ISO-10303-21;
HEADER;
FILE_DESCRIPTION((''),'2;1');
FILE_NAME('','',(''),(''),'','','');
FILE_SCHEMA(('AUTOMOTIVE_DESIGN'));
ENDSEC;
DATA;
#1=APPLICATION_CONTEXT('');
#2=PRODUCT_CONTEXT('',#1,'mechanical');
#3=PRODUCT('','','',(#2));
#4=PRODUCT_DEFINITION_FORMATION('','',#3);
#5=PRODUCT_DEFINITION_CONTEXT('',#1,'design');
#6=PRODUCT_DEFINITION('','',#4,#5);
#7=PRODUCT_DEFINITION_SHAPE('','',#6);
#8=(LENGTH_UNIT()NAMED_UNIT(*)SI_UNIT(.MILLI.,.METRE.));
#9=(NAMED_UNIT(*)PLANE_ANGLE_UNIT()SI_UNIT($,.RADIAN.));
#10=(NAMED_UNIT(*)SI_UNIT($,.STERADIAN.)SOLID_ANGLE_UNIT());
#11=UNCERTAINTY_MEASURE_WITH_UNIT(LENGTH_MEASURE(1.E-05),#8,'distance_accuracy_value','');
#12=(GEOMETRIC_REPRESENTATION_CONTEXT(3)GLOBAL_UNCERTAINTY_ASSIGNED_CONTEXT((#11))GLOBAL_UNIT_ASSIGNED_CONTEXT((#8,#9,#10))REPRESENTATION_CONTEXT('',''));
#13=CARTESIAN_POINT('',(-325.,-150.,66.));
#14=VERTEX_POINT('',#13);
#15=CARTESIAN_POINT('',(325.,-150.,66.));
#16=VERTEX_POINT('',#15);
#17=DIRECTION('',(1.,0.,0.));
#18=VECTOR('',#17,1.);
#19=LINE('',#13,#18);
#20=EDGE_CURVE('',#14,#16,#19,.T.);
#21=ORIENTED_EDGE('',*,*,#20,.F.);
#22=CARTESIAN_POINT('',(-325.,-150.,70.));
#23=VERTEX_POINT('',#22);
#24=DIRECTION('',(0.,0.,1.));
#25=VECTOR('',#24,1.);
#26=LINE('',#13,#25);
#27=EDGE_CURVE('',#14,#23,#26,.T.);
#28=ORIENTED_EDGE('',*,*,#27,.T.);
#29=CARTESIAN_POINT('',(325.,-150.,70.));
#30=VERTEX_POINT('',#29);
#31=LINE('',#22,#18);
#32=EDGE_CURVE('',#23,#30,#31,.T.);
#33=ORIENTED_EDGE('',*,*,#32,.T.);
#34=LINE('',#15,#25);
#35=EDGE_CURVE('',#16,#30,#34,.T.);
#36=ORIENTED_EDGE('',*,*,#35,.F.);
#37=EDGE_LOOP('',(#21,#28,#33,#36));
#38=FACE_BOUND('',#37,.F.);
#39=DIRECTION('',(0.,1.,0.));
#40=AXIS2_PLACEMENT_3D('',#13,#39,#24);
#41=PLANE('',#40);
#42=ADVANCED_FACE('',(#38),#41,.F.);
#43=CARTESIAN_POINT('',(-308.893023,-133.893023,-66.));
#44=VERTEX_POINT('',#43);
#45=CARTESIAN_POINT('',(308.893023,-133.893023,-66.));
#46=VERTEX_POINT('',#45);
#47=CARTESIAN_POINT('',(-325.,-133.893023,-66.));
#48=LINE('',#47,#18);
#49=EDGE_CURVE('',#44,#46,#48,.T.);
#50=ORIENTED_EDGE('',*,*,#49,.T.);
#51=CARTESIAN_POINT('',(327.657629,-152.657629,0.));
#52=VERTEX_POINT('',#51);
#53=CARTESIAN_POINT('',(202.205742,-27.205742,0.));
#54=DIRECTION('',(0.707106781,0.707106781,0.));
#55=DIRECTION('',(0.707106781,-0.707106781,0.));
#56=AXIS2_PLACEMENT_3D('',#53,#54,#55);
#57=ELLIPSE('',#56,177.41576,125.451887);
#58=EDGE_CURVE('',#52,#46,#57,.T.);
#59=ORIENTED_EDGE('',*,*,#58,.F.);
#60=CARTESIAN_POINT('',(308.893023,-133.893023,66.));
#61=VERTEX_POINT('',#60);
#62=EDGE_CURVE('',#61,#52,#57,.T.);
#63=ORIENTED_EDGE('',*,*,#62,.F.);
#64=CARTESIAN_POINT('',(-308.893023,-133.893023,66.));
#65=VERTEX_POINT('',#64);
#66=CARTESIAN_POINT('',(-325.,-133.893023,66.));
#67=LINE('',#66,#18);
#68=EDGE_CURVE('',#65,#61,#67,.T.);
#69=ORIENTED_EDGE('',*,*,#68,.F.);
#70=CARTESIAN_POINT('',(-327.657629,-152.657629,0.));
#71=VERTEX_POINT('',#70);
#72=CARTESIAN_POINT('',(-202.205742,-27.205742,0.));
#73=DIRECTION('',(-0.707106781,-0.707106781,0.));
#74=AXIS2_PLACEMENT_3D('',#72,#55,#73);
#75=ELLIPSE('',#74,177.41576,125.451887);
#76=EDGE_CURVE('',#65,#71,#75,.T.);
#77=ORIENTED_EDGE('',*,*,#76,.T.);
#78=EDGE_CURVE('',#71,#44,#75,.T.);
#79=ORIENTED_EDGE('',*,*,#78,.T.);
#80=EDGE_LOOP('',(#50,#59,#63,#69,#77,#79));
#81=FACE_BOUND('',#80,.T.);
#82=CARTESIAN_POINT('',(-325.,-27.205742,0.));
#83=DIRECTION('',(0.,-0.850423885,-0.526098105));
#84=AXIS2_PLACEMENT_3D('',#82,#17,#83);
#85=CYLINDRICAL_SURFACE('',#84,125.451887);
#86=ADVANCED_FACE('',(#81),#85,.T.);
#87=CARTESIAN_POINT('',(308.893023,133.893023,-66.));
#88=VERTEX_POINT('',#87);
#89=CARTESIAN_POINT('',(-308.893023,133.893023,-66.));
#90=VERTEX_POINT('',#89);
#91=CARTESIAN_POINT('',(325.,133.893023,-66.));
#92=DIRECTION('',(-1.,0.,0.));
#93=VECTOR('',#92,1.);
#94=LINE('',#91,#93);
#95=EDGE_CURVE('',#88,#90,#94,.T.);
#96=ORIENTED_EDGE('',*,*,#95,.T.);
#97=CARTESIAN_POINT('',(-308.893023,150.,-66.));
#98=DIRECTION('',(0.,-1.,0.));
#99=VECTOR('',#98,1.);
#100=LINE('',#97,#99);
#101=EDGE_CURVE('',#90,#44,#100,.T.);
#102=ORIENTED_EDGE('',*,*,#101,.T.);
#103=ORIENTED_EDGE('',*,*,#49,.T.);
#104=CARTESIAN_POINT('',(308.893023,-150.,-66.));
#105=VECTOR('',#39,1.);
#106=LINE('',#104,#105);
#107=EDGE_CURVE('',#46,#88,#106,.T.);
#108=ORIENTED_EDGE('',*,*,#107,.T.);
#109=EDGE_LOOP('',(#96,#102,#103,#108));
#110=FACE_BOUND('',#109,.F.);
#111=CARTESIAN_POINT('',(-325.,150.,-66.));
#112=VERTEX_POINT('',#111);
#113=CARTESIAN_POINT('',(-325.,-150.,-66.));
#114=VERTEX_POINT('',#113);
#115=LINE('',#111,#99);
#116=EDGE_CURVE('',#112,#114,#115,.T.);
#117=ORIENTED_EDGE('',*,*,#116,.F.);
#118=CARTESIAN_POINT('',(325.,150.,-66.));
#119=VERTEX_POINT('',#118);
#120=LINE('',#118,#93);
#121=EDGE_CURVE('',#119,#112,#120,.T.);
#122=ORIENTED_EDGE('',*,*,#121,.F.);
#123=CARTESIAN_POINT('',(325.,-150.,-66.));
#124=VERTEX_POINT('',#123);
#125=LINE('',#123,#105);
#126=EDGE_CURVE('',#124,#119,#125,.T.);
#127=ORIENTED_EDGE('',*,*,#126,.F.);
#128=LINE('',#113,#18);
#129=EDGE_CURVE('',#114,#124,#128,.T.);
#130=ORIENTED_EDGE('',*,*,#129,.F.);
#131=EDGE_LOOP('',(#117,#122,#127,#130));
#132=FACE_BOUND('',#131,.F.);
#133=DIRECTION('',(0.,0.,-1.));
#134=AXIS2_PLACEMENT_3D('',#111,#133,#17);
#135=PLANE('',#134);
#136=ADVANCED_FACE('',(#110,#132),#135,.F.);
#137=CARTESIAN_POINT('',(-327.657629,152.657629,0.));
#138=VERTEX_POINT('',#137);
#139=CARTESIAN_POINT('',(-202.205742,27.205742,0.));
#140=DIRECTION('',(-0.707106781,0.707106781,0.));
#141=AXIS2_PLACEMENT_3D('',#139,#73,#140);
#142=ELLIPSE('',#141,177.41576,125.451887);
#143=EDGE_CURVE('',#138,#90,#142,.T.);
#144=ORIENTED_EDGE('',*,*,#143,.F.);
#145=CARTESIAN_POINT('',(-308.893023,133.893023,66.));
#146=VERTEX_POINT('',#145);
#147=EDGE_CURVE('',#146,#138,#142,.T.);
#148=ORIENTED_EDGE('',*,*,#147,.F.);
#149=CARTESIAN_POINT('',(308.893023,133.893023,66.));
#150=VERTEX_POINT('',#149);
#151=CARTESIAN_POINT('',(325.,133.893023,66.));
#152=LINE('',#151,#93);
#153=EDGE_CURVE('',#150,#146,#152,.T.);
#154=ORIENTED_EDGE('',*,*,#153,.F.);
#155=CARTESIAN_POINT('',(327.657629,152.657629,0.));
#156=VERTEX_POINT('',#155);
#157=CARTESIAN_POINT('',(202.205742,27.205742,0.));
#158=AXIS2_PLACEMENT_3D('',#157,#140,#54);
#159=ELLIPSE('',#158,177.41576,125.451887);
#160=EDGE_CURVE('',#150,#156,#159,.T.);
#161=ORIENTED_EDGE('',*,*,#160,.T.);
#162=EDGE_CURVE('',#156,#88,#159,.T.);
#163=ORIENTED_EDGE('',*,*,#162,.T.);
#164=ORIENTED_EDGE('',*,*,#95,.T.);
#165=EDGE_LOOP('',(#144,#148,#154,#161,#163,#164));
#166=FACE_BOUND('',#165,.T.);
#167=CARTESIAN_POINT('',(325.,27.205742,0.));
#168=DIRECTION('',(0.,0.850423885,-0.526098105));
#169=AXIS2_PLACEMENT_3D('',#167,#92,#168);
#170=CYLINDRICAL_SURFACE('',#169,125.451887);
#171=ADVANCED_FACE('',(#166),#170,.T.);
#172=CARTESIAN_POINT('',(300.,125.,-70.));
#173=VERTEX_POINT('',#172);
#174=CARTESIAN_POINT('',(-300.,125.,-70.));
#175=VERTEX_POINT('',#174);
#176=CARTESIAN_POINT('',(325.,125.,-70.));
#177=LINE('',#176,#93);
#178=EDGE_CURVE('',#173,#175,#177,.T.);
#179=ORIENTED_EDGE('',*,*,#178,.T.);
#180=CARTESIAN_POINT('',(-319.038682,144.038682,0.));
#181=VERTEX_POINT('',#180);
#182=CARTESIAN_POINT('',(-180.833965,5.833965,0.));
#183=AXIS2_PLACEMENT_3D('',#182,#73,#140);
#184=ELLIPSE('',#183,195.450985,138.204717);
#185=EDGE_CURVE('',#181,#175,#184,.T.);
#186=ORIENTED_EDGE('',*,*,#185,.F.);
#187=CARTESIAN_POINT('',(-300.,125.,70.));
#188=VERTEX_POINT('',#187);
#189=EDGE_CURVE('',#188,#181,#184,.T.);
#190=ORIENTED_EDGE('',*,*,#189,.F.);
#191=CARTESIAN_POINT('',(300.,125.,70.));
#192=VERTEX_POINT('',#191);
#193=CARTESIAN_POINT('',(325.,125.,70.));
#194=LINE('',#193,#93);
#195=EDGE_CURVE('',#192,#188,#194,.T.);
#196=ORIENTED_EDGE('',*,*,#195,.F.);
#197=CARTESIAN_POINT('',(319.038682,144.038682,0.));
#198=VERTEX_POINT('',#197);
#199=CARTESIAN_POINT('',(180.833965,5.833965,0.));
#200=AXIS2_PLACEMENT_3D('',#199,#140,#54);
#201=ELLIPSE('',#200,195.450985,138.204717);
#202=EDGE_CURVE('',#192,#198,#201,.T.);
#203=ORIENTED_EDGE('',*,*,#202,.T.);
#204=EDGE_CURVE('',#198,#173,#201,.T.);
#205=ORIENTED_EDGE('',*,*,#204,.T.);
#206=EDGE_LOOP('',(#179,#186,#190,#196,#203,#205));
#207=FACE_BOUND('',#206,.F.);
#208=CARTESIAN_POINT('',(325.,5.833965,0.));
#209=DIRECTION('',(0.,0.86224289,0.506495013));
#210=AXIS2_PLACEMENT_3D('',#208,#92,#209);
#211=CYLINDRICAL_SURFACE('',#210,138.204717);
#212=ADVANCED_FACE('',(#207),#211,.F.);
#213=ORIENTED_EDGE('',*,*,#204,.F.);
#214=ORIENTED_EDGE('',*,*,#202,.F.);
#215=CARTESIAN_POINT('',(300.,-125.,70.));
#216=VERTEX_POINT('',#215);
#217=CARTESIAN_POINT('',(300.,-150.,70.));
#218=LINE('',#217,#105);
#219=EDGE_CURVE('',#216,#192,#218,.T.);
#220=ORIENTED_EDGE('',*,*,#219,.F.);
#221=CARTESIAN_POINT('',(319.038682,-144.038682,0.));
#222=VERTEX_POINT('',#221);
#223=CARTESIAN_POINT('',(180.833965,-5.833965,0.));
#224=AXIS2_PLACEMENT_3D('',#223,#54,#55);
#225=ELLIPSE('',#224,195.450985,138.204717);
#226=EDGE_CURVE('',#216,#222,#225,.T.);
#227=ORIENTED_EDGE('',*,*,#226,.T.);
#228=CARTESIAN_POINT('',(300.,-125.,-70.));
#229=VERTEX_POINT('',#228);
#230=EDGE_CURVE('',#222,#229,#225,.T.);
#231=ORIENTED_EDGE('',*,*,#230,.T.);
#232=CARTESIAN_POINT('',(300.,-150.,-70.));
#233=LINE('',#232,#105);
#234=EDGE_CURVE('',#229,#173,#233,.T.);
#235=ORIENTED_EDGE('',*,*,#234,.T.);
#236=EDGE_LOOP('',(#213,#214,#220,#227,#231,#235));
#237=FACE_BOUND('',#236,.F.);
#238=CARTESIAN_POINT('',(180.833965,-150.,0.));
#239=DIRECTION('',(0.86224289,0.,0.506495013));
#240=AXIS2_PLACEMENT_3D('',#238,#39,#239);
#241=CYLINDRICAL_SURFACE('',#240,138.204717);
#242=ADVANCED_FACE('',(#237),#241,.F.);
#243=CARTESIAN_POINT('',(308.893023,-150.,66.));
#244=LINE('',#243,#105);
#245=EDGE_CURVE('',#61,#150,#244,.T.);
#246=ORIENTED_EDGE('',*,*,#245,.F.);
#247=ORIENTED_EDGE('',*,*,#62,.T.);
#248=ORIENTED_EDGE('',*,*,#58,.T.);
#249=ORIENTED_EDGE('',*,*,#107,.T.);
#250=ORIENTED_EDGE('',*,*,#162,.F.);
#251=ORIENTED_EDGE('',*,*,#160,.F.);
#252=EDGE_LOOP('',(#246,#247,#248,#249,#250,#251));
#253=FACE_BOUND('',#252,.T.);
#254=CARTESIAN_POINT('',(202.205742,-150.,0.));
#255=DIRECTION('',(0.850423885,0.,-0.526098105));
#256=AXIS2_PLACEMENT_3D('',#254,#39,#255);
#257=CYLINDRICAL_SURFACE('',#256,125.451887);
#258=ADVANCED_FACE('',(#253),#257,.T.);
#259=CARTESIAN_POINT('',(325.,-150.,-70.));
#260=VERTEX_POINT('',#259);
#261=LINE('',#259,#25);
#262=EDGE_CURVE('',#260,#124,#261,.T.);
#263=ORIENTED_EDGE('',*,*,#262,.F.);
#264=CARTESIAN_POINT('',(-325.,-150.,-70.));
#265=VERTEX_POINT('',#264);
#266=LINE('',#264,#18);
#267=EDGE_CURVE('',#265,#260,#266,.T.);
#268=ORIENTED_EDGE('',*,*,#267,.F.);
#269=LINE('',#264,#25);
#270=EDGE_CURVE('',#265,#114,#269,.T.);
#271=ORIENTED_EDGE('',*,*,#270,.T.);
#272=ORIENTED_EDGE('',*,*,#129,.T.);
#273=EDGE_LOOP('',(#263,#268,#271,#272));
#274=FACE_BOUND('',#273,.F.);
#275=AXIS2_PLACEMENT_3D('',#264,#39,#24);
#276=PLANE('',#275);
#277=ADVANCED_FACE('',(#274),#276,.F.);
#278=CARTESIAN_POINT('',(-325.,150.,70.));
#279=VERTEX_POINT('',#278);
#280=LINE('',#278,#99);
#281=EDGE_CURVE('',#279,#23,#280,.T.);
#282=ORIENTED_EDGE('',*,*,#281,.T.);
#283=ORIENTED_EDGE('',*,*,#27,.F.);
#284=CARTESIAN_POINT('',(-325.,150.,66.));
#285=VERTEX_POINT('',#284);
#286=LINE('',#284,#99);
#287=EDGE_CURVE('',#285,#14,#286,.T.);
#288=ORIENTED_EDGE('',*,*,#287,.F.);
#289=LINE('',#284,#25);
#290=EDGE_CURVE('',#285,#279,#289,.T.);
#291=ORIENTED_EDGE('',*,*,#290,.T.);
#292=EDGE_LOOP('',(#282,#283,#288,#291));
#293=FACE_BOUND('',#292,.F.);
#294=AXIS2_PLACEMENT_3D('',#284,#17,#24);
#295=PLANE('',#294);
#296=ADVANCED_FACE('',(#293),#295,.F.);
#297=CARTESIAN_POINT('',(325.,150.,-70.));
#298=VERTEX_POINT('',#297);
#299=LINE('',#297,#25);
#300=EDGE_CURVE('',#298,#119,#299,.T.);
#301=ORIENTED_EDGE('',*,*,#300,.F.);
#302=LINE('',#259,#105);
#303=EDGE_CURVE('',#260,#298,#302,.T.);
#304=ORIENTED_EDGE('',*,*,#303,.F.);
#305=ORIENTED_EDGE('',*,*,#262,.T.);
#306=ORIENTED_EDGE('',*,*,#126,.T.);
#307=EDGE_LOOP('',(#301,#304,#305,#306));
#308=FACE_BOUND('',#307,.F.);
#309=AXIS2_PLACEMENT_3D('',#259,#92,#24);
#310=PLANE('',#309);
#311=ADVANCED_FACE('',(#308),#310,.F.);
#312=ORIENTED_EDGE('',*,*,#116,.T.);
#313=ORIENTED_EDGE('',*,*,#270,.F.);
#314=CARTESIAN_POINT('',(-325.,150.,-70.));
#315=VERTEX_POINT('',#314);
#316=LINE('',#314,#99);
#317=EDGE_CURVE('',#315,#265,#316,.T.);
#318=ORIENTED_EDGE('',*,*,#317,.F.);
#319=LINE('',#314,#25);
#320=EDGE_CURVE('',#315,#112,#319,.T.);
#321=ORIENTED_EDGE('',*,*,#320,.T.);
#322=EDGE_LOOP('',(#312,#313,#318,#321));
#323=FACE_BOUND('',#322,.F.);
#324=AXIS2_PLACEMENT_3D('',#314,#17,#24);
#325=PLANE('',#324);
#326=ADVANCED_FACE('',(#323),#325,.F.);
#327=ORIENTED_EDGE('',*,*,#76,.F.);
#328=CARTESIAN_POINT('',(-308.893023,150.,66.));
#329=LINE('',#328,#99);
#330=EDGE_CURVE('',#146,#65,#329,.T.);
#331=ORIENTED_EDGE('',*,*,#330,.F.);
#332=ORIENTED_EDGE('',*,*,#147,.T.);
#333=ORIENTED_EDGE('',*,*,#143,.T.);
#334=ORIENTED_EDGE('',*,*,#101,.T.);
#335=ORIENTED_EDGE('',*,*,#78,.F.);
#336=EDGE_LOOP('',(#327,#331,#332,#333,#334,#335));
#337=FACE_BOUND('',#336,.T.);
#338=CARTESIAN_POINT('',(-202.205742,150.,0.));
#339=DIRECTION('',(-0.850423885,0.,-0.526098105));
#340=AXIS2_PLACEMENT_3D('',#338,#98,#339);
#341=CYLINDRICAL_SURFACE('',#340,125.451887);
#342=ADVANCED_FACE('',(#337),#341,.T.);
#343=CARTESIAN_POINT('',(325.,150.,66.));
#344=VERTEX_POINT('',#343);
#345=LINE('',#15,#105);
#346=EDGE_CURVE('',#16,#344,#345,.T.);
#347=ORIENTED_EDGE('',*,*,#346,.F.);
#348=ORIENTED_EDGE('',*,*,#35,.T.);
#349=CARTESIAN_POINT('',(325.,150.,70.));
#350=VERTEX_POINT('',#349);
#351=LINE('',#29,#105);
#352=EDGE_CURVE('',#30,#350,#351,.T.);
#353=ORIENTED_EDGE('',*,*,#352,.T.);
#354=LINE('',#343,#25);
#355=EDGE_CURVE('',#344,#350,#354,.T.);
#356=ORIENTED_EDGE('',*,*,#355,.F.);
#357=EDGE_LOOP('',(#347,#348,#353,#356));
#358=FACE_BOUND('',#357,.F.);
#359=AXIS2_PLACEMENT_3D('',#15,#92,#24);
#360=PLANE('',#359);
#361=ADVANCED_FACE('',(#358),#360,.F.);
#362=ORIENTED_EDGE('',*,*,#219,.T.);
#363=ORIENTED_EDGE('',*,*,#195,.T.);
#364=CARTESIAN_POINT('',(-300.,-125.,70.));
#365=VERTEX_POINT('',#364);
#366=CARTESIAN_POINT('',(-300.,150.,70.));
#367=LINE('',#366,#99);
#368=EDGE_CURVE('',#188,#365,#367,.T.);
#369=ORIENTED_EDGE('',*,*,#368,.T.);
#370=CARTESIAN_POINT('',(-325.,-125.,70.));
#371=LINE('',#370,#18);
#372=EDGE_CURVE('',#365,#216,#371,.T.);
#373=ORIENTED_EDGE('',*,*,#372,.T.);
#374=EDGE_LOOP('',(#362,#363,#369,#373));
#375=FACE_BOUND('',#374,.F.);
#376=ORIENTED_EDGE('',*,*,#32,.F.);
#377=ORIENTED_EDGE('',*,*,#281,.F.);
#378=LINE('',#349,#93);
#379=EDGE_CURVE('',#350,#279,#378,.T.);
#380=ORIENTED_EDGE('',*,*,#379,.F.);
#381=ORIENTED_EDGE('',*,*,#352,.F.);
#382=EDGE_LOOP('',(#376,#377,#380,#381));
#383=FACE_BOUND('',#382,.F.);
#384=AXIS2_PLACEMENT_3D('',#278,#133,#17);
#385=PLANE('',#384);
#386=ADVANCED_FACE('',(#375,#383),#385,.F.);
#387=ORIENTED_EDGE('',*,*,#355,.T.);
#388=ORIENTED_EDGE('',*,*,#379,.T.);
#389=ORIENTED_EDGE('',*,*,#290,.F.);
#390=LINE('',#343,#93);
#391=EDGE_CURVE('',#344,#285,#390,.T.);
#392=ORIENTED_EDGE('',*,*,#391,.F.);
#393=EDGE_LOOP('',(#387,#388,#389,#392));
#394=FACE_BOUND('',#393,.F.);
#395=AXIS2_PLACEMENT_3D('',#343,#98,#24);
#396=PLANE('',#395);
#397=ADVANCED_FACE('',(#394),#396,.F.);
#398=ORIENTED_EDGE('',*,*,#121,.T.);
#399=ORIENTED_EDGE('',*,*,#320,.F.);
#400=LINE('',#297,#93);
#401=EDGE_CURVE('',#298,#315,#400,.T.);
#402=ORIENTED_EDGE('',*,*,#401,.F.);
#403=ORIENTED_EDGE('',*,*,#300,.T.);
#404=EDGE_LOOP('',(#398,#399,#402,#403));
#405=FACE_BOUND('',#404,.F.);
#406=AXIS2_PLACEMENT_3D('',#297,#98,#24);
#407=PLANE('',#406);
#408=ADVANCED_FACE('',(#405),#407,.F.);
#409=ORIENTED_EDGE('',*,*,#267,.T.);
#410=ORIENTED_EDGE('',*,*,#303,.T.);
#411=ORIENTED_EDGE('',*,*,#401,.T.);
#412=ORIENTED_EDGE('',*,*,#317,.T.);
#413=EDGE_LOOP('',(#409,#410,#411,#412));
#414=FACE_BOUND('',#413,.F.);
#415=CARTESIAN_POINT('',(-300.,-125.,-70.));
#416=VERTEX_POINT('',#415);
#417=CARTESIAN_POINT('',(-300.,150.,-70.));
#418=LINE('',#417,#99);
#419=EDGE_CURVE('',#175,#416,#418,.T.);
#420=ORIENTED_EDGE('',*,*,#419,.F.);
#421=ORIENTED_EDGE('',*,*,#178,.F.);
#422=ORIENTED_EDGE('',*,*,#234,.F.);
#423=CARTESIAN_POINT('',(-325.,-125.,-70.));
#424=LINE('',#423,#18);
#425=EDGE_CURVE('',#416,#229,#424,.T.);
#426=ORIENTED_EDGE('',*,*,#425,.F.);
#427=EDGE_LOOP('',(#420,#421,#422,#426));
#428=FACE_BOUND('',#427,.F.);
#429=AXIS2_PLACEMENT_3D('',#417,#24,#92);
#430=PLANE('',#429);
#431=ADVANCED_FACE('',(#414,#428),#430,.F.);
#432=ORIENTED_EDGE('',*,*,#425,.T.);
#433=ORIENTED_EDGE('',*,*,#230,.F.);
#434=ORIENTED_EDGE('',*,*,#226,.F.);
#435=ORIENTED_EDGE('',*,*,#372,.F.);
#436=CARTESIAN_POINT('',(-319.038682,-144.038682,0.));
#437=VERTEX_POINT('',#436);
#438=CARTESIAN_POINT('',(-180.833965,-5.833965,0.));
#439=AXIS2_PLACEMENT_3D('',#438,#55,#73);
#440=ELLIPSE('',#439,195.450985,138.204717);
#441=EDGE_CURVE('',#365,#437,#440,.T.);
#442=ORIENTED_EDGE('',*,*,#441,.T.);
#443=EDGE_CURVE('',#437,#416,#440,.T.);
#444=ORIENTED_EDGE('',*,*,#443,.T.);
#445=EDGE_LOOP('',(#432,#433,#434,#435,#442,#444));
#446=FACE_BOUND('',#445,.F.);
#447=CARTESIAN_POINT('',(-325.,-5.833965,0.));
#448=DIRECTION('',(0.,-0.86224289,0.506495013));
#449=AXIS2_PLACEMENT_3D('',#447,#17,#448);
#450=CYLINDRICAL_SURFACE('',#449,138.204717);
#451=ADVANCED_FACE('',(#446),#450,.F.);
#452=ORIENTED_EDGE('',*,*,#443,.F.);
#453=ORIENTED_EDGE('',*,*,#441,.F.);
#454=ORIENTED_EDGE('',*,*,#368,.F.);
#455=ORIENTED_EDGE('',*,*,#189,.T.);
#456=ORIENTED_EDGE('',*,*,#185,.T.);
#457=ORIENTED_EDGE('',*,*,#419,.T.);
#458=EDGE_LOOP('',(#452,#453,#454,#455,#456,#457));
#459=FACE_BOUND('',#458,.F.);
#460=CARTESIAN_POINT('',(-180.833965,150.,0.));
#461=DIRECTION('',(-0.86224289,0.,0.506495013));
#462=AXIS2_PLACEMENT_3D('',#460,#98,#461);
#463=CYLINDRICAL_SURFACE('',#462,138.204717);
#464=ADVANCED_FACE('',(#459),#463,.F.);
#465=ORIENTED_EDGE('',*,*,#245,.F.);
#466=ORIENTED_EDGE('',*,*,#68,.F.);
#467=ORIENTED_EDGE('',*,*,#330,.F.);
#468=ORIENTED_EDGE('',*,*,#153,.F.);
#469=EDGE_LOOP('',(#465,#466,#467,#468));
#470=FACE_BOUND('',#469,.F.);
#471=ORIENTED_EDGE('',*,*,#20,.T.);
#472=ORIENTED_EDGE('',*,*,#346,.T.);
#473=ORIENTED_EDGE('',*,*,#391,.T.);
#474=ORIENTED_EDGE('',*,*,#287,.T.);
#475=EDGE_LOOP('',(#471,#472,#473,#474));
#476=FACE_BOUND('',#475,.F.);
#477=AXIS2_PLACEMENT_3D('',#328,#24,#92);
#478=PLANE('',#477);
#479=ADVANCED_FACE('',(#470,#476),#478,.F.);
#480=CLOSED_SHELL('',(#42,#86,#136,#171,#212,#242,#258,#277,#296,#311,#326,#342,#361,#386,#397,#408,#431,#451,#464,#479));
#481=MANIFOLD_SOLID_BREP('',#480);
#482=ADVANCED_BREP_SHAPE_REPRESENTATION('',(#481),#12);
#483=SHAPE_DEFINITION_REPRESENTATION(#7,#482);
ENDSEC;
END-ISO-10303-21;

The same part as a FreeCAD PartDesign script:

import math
import FreeCAD as App
import Part
import Sketcher
from FreeCAD import Vector

doc = App.newDocument("Part")
body = doc.addObject("PartDesign::Body", "Body")

# Sketch on YZ plane
sketch1 = body.newObject("Sketcher::SketchObject", "Sketch")
sketch1.AttachmentSupport = (doc.getObject("YZ_Plane"), [""])
sketch1.MapMode = "FlatFace"
sketch1.addGeometry([
    Part.LineSegment(Vector(125, -70, 0), Vector(150, -70, 0)),  # 0
    Part.LineSegment(Vector(150, -70, 0), Vector(150, -66, 0)),  # 1
    Part.LineSegment(Vector(150, -66, 0), Vector(133.9, -66, 0)),  # 2
    Part.ArcOfCircle(Part.Circle(Vector(27.2, 0, 0), Vector(0, 0, 1), 125.5), math.radians(-32), math.radians(32)),  # 3
    Part.LineSegment(Vector(133.9, 66, 0), Vector(150, 66, 0)),  # 4
    Part.LineSegment(Vector(150, 66, 0), Vector(150, 70, 0)),  # 5
    Part.LineSegment(Vector(150, 70, 0), Vector(125, 70, 0)),  # 6
    Part.ArcOfCircle(Part.Circle(Vector(5.8, 0, 0), Vector(0, 0, 1), 138.2), math.radians(-30), math.radians(30)),  # 7
], False)
sketch1.addConstraint([
    Sketcher.Constraint("Coincident", 0, 2, 1, 1),
    Sketcher.Constraint("Coincident", 1, 2, 2, 1),
    Sketcher.Constraint("Coincident", 2, 2, 3, 1),
    Sketcher.Constraint("Coincident", 3, 2, 4, 1),
    Sketcher.Constraint("Coincident", 4, 2, 5, 1),
    Sketcher.Constraint("Coincident", 5, 2, 6, 1),
    Sketcher.Constraint("Coincident", 6, 2, 7, 2),
    Sketcher.Constraint("Coincident", 7, 1, 0, 1),
    Sketcher.Constraint("Horizontal", 0),
    Sketcher.Constraint("Vertical", 1),
    Sketcher.Constraint("Horizontal", 2),
    Sketcher.Constraint("Horizontal", 4),
    Sketcher.Constraint("Vertical", 5),
    Sketcher.Constraint("Horizontal", 6),
    Sketcher.Constraint("Symmetric", 2, 2, 3, 2, -1),
    Sketcher.Constraint("Symmetric", 0, 2, 5, 2, -1),
    Sketcher.Constraint("PointOnObject", 7, 3, -1),
    Sketcher.Constraint("DistanceX", 0, 1, 0, 2, 25.0),
    Sketcher.Constraint("DistanceY", 1, 1, 1, 2, 4.0),
    Sketcher.Constraint("DistanceX", -1, 1, 0, 2, 150.0),
    Sketcher.Constraint("DistanceY", 0, 2, -1, 1, 70.0),
    Sketcher.Constraint("Radius", 3, 125.451887),
    Sketcher.Constraint("Radius", 7, 138.204717),
    Sketcher.Constraint("DistanceX", 2, 2, 2, 1, 16.106977),
])

# Sketch on XY plane
sketch2 = body.newObject("Sketcher::SketchObject", "Sketch001")
sketch2.AttachmentSupport = (doc.getObject("XY_Plane"), [""])
sketch2.MapMode = "FlatFace"
sketch2.addGeometry([
    Part.LineSegment(Vector(-325, 150, 0), Vector(-325, -150, 0)),
    Part.LineSegment(Vector(-325, -150, 0), Vector(325, -150, 0)),
    Part.LineSegment(Vector(325, -150, 0), Vector(325, 150, 0)),
    Part.LineSegment(Vector(325, 150, 0), Vector(-325, 150, 0)),
], False)
sketch2.addConstraint([
    Sketcher.Constraint("Coincident", 0, 2, 1, 1),
    Sketcher.Constraint("Coincident", 1, 2, 2, 1),
    Sketcher.Constraint("Coincident", 2, 2, 3, 1),
    Sketcher.Constraint("Coincident", 3, 2, 0, 1),
    Sketcher.Constraint("Vertical", 0),
    Sketcher.Constraint("Horizontal", 1),
    Sketcher.Constraint("Vertical", 2),
    Sketcher.Constraint("Horizontal", 3),
    Sketcher.Constraint("Symmetric", 0, 2, 2, 2, -1, 1),
    Sketcher.Constraint("DistanceX", 1, 1, 1, 2, 650.0),
    Sketcher.Constraint("DistanceY", 0, 2, 0, 1, 300.0),
])
doc.recompute()

additivepipe = body.newObject("PartDesign::AdditivePipe", "AdditivePipe")
additivepipe.Profile = sketch1
additivepipe.Spine = (sketch2, ["Edge1", "Edge2", "Edge3", "Edge4"])
additivepipe.Transition = "Right corner"

doc.recompute()
